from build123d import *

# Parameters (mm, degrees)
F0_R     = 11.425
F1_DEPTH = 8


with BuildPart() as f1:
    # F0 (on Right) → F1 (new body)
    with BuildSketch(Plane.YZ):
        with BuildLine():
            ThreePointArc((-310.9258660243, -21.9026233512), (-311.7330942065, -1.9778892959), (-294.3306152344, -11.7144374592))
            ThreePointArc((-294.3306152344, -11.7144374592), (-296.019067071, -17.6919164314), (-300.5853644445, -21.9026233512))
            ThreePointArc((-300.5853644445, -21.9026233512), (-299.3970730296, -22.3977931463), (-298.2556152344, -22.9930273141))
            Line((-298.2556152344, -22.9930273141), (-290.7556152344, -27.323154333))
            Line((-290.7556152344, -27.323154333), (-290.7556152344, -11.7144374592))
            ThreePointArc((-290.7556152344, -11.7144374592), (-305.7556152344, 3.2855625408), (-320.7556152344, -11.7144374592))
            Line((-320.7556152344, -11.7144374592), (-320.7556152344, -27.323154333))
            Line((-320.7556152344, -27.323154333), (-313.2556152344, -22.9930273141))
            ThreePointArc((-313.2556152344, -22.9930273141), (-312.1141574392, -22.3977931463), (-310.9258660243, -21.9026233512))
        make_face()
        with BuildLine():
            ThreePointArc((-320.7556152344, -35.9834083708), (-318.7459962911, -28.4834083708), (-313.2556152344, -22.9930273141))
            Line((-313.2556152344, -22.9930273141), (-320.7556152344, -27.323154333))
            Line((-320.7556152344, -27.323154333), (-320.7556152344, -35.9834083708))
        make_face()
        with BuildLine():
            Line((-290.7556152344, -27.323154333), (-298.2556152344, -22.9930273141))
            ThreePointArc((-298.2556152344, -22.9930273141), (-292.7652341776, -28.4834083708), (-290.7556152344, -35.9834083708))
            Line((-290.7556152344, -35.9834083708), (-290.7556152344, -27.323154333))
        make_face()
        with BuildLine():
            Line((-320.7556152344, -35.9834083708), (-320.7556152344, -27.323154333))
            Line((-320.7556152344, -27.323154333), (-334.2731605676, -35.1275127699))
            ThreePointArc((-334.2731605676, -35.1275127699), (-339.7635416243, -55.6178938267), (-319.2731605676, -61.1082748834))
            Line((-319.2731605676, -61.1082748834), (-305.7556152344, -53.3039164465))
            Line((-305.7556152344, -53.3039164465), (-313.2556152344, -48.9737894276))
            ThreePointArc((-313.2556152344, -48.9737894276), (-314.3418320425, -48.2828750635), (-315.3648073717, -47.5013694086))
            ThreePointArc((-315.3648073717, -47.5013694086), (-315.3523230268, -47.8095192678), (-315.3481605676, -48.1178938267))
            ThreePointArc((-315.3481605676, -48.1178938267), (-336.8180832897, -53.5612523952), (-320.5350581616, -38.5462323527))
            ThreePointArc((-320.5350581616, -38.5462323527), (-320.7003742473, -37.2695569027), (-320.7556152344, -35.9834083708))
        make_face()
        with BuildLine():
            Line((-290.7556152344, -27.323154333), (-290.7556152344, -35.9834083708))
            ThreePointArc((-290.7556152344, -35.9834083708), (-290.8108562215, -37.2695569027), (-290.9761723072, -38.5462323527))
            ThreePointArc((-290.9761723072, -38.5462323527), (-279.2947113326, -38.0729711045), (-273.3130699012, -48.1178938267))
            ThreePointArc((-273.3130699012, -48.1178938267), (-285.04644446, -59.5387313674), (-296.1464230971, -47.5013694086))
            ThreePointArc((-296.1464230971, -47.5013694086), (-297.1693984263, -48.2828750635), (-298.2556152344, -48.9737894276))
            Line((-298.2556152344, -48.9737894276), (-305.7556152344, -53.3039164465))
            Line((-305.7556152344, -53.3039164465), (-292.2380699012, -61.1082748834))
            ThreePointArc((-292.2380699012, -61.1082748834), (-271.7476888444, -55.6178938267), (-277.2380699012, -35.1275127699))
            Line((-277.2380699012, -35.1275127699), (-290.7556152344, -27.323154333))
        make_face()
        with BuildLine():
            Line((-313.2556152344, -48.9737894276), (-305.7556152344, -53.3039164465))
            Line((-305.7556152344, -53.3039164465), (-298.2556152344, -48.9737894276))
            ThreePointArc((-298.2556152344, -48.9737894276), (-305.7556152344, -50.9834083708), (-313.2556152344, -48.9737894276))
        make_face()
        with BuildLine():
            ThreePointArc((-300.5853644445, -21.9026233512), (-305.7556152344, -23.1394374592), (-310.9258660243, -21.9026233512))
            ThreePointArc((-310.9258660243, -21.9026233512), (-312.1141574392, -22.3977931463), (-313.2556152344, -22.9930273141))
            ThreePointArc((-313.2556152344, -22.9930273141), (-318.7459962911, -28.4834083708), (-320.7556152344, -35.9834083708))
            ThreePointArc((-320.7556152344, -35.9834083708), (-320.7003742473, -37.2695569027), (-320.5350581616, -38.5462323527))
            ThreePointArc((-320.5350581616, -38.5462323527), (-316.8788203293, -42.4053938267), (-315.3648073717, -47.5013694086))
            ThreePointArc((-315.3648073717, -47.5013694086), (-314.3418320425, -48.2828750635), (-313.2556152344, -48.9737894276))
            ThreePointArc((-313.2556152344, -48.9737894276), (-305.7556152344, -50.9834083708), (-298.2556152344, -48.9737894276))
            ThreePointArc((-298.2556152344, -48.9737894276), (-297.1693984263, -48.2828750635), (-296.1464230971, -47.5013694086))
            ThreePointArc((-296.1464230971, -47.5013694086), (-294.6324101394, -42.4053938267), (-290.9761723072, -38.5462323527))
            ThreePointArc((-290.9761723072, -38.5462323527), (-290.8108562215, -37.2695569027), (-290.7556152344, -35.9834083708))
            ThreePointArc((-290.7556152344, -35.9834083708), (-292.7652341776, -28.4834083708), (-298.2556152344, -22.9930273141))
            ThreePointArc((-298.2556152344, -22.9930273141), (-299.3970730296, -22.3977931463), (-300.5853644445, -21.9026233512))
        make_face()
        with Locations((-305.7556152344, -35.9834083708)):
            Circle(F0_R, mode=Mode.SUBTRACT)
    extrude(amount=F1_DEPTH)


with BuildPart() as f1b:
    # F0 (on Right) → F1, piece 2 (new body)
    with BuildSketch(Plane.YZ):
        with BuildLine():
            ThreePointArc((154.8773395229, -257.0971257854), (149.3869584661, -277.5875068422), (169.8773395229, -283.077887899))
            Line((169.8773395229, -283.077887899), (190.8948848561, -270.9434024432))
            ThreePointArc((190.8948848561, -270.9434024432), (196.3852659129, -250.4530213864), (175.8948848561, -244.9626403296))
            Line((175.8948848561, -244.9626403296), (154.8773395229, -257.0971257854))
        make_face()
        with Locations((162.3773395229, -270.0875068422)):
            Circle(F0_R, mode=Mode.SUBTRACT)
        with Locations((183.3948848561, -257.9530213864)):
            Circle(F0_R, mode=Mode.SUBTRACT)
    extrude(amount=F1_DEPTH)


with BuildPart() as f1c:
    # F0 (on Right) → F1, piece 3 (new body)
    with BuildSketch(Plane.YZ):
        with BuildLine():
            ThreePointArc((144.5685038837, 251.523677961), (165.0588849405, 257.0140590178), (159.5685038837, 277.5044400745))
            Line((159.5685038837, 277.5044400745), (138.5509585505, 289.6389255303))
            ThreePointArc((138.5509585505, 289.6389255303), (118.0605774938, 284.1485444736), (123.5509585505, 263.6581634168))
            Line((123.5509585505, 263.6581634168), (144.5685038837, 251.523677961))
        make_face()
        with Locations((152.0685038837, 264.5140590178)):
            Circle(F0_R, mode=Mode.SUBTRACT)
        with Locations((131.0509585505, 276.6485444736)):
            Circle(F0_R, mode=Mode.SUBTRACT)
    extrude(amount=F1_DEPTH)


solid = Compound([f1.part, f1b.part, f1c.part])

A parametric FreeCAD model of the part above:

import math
import FreeCAD as App
import Part
import Sketcher
Q = App.Units.Quantity

doc = App.newDocument("Part")
body = doc.addObject("PartDesign::Body", "Body")

# Sketch on YZ plane
sketch1 = doc.addObject("Sketcher::SketchObject", "Sketch")
body.addObject(sketch1)
sketch1.AttachmentSupport = (doc.YZ_Plane, [""])
sketch1.MapMode = "FlatFace"
sketch1.addGeometry([
    Part.LineSegment(App.Vector(-319.3, -61.1, 0), App.Vector(-305.8, -53.3, 0)),  # 0
    Part.LineSegment(App.Vector(-305.8, -53.3, 0), App.Vector(-292.2, -61.1, 0)),  # 1
    Part.ArcOfCircle(Part.Circle(App.Vector(-284.7, -48.1, 0), App.Vector(0, 0, 1), 15), math.radians(-120), math.radians(60)),  # 2
    Part.LineSegment(App.Vector(-277.2, -35.1, 0), App.Vector(-290.8, -27.3, 0)),  # 3
    Part.LineSegment(App.Vector(-290.8, -27.3, 0), App.Vector(-290.8, -11.7, 0)),  # 4
    Part.ArcOfCircle(Part.Circle(App.Vector(-305.8, -11.7, 0), App.Vector(0, 0, 1), 15), math.radians(0), math.radians(180)),  # 5
    Part.LineSegment(App.Vector(-320.8, -11.7, 0), App.Vector(-320.8, -27.3, 0)),  # 6
    Part.LineSegment(App.Vector(-320.8, -27.3, 0), App.Vector(-334.3, -35.1, 0)),  # 7
    Part.ArcOfCircle(Part.Circle(App.Vector(-326.8, -48.1, 0), App.Vector(0, 0, 1), 15), math.radians(120), math.radians(300)),  # 8
    Part.ArcOfCircle(Part.Circle(App.Vector(-326.8, -48.1, 0), App.Vector(0, 0, 1), 11.4), math.radians(0), math.radians(3.09)),  # 9
    Part.ArcOfCircle(Part.Circle(App.Vector(-326.8, -48.1, 0), App.Vector(0, 0, 1), 11.4), math.radians(57), math.radians(360)),  # 10
    Part.ArcOfCircle(Part.Circle(App.Vector(-326.8, -48.1, 0), App.Vector(0, 0, 1), 11.4), math.radians(3), math.radians(57)),  # 11
    Part.Circle(App.Vector(-305.8, -36, 0), App.Vector(0, 0, 1), 11.4),  # 12
    Part.ArcOfCircle(Part.Circle(App.Vector(-284.7, -48.1, 0), App.Vector(0, 0, 1), 11.4), math.radians(0), math.radians(123)),  # 13
    Part.ArcOfCircle(Part.Circle(App.Vector(-284.7, -48.1, 0), App.Vector(0, 0, 1), 11.4), math.radians(177), math.radians(360)),  # 14
    Part.ArcOfCircle(Part.Circle(App.Vector(-284.7, -48.1, 0), App.Vector(0, 0, 1), 11.4), math.radians(123), math.radians(177)),  # 15
    Part.ArcOfCircle(Part.Circle(App.Vector(-305.8, -11.7, 0), App.Vector(0, 0, 1), 11.4), math.radians(0), math.radians(243)),  # 16
    Part.ArcOfCircle(Part.Circle(App.Vector(-305.8, -11.7, 0), App.Vector(0, 0, 1), 11.4), math.radians(-63), math.radians(0)),  # 17
    Part.ArcOfCircle(Part.Circle(App.Vector(-305.8, -11.7, 0), App.Vector(0, 0, 1), 11.4), math.radians(-117), math.radians(-63)),  # 18
], False)
sketch1.addConstraint([
    Sketcher.Constraint("Coincident", 0, 2, 1, 1),
    Sketcher.Constraint("Tangent", 1, 2, 2, 1),
    Sketcher.Constraint("Tangent", 2, 2, 3, 1),
    Sketcher.Constraint("Coincident", 3, 2, 4, 1),
    Sketcher.Constraint("Tangent", 4, 2, 5, 1),
    Sketcher.Constraint("Tangent", 5, 2, 6, 1),
    Sketcher.Constraint("Coincident", 6, 2, 7, 1),
    Sketcher.Constraint("Tangent", 7, 2, 8, 1),
    Sketcher.Constraint("Tangent", 8, 2, 0, 1),
    Sketcher.Constraint("Tangent", 9, 1, 10, 2),
    Sketcher.Constraint("Tangent", 10, 1, 11, 2),
    Sketcher.Constraint("Tangent", 11, 1, 9, 2),
    Sketcher.Constraint("Tangent", 13, 1, 14, 2),
    Sketcher.Constraint("Tangent", 14, 1, 15, 2),
    Sketcher.Constraint("Tangent", 15, 1, 13, 2),
    Sketcher.Constraint("Tangent", 16, 1, 17, 2),
    Sketcher.Constraint("Tangent", 17, 1, 18, 2),
    Sketcher.Constraint("Tangent", 18, 1, 16, 2),
    Sketcher.Constraint("Vertical", 4),
    Sketcher.Constraint("Vertical", 6),
    Sketcher.Constraint("Coincident", 9, 3, 8, 3),
    Sketcher.Constraint("Coincident", 13, 3, 2, 3),
    Sketcher.Constraint("Coincident", 16, 3, 5, 3),
    Sketcher.Constraint("Equal", 2, 5),
    Sketcher.Constraint("Equal", 5, 8),
    Sketcher.Constraint("Equal", 11, 12),
    Sketcher.Constraint("Equal", 12, 13),
    Sketcher.Constraint("Equal", 15, 16),
    Sketcher.Constraint("Parallel", 1, 3),
    Sketcher.Constraint("Parallel", 0, 7),
    Sketcher.Constraint("Horizontal", 2, 3, 8, 3),
    Sketcher.Constraint("Horizontal", 3, 2, 6, 2),
    Sketcher.Constraint("Horizontal", 2, 2, 7, 2),
    Sketcher.Constraint("Horizontal", 15, 3, 9, 1),
    Sketcher.Constraint("Horizontal", 9, 1, 13, 1),
    Sketcher.Constraint("Horizontal", 11, 1, 14, 1),
    Sketcher.Constraint("Horizontal", 10, 1, 15, 1),
    Sketcher.Constraint("Horizontal", 5, 2, 16, 1),
    Sketcher.Constraint("Horizontal", 17, 1, 18, 1),
    Sketcher.Constraint("Vertical", 5, 3, 12, 3),
    Sketcher.Constraint("Equal", 1, 3),
    Sketcher.Constraint("Radius", 2, 15.0),
    Sketcher.Constraint("Diameter", 12, 22.85),
    Sketcher.Constraint("DistanceX", 18, 1, 17, 1, 10.340502),
    Sketcher.Constraint("DistanceY", 4, 1, 4, 2, 15.608717),
    Sketcher.Constraint("DistanceX", 2, 3, -1, 1, 284.73807),
    Sketcher.Constraint("DistanceX", 8, 3, -1, 1, 326.773161),
    Sketcher.Constraint("DistanceY", 12, 3, -1, 1, 35.983408),
    Sketcher.Constraint("DistanceX", 10, 1, -1, 1, 320.535058),
    Sketcher.Constraint("DistanceY", 11, 1, -1, 1, 47.501369),
    Sketcher.Constraint("DistanceY", 12, 3, 5, 3, 24.268971),
])
pad1 = doc.addObject("PartDesign::Pad", "Pad")
body.addObject(pad1)
pad1.Profile = sketch1
pad1.Length = 8
body2 = doc.addObject("PartDesign::Body", "Body001")

# Sketch on YZ plane
sketch2 = doc.addObject("Sketcher::SketchObject", "Sketch001")
body2.addObject(sketch2)
sketch2.AttachmentSupport = (doc.getObject("YZ_Plane001"), [""])
sketch2.MapMode = "FlatFace"
sketch2.addGeometry([
    Part.ArcOfCircle(Part.Circle(App.Vector(162, -270, 0), App.Vector(0, 0, 1), 15), math.radians(120), math.radians(300)),  # 0
    Part.LineSegment(App.Vector(170, -283, 0), App.Vector(191, -271, 0)),  # 1
    Part.ArcOfCircle(Part.Circle(App.Vector(183, -258, 0), App.Vector(0, 0, 1), 15), math.radians(-60), math.radians(120)),  # 2
    Part.LineSegment(App.Vector(176, -245, 0), App.Vector(155, -257, 0)),  # 3
    Part.Circle(App.Vector(162, -270, 0), App.Vector(0, 0, 1), 11),  # 4
    Part.Circle(App.Vector(183, -258, 0), App.Vector(0, 0, 1), 11),  # 5
], False)
sketch2.addConstraint([
    Sketcher.Constraint("Tangent", 0, 2, 1, 1),
    Sketcher.Constraint("Tangent", 1, 2, 2, 1),
    Sketcher.Constraint("Tangent", 2, 2, 3, 1),
    Sketcher.Constraint("Tangent", 3, 2, 0, 1),
    Sketcher.Constraint("Coincident", 4, 3, 0, 3),
    Sketcher.Constraint("Coincident", 5, 3, 2, 3),
    Sketcher.Constraint("Equal", 0, 2),
    Sketcher.Constraint("Equal", 4, 5),
    Sketcher.Constraint("Radius", 0, 15.0),
    Sketcher.Constraint("Diameter", 4, 22.85),
    Sketcher.Constraint("Angle", 1, Q("30 deg")),
    Sketcher.Constraint("Distance", 1, 24.268971),
    Sketcher.Constraint("DistanceX", -1, 1, 0, 3, 162.37734),
    Sketcher.Constraint("DistanceY", 2, 3, -1, 1, 257.953021),
])
pad2 = doc.addObject("PartDesign::Pad", "Pad001")
body2.addObject(pad2)
pad2.Profile = sketch2
pad2.Length = 8
body3 = doc.addObject("PartDesign::Body", "Body002")

# Sketch on YZ plane
sketch3 = doc.addObject("Sketcher::SketchObject", "Sketch002")
body3.addObject(sketch3)
sketch3.AttachmentSupport = (doc.getObject("YZ_Plane002"), [""])
sketch3.MapMode = "FlatFace"
sketch3.addGeometry([
    Part.ArcOfCircle(Part.Circle(App.Vector(152, 265, 0), App.Vector(0, 0, 1), 15), math.radians(-120), math.radians(60)),  # 0
    Part.LineSegment(App.Vector(160, 278, 0), App.Vector(139, 290, 0)),  # 1
    Part.ArcOfCircle(Part.Circle(App.Vector(131, 277, 0), App.Vector(0, 0, 1), 15), math.radians(60), math.radians(240)),  # 2
    Part.LineSegment(App.Vector(124, 264, 0), App.Vector(145, 252, 0)),  # 3
    Part.Circle(App.Vector(152, 265, 0), App.Vector(0, 0, 1), 11),  # 4
    Part.Circle(App.Vector(131, 277, 0), App.Vector(0, 0, 1), 11),  # 5
], False)
sketch3.addConstraint([
    Sketcher.Constraint("Tangent", 0, 2, 1, 1),
    Sketcher.Constraint("Tangent", 1, 2, 2, 1),
    Sketcher.Constraint("Tangent", 2, 2, 3, 1),
    Sketcher.Constraint("Tangent", 3, 2, 0, 1),
    Sketcher.Constraint("Coincident", 4, 3, 0, 3),
    Sketcher.Constraint("Coincident", 5, 3, 2, 3),
    Sketcher.Constraint("Equal", 0, 2),
    Sketcher.Constraint("Equal", 4, 5),
    Sketcher.Constraint("Radius", 0, 15.0),
    Sketcher.Constraint("Diameter", 4, 22.85),
    Sketcher.Constraint("Angle", 1, Q("150 deg")),
    Sketcher.Constraint("Distance", 1, 24.268971),
    Sketcher.Constraint("DistanceY", -1, 1, 0, 3, 264.514059),
    Sketcher.Constraint("DistanceX", -1, 1, 2, 3, 131.050959),
])
pad3 = doc.addObject("PartDesign::Pad", "Pad002")
body3.addObject(pad3)
pad3.Profile = sketch3
pad3.Length = 8

doc.recompute()
